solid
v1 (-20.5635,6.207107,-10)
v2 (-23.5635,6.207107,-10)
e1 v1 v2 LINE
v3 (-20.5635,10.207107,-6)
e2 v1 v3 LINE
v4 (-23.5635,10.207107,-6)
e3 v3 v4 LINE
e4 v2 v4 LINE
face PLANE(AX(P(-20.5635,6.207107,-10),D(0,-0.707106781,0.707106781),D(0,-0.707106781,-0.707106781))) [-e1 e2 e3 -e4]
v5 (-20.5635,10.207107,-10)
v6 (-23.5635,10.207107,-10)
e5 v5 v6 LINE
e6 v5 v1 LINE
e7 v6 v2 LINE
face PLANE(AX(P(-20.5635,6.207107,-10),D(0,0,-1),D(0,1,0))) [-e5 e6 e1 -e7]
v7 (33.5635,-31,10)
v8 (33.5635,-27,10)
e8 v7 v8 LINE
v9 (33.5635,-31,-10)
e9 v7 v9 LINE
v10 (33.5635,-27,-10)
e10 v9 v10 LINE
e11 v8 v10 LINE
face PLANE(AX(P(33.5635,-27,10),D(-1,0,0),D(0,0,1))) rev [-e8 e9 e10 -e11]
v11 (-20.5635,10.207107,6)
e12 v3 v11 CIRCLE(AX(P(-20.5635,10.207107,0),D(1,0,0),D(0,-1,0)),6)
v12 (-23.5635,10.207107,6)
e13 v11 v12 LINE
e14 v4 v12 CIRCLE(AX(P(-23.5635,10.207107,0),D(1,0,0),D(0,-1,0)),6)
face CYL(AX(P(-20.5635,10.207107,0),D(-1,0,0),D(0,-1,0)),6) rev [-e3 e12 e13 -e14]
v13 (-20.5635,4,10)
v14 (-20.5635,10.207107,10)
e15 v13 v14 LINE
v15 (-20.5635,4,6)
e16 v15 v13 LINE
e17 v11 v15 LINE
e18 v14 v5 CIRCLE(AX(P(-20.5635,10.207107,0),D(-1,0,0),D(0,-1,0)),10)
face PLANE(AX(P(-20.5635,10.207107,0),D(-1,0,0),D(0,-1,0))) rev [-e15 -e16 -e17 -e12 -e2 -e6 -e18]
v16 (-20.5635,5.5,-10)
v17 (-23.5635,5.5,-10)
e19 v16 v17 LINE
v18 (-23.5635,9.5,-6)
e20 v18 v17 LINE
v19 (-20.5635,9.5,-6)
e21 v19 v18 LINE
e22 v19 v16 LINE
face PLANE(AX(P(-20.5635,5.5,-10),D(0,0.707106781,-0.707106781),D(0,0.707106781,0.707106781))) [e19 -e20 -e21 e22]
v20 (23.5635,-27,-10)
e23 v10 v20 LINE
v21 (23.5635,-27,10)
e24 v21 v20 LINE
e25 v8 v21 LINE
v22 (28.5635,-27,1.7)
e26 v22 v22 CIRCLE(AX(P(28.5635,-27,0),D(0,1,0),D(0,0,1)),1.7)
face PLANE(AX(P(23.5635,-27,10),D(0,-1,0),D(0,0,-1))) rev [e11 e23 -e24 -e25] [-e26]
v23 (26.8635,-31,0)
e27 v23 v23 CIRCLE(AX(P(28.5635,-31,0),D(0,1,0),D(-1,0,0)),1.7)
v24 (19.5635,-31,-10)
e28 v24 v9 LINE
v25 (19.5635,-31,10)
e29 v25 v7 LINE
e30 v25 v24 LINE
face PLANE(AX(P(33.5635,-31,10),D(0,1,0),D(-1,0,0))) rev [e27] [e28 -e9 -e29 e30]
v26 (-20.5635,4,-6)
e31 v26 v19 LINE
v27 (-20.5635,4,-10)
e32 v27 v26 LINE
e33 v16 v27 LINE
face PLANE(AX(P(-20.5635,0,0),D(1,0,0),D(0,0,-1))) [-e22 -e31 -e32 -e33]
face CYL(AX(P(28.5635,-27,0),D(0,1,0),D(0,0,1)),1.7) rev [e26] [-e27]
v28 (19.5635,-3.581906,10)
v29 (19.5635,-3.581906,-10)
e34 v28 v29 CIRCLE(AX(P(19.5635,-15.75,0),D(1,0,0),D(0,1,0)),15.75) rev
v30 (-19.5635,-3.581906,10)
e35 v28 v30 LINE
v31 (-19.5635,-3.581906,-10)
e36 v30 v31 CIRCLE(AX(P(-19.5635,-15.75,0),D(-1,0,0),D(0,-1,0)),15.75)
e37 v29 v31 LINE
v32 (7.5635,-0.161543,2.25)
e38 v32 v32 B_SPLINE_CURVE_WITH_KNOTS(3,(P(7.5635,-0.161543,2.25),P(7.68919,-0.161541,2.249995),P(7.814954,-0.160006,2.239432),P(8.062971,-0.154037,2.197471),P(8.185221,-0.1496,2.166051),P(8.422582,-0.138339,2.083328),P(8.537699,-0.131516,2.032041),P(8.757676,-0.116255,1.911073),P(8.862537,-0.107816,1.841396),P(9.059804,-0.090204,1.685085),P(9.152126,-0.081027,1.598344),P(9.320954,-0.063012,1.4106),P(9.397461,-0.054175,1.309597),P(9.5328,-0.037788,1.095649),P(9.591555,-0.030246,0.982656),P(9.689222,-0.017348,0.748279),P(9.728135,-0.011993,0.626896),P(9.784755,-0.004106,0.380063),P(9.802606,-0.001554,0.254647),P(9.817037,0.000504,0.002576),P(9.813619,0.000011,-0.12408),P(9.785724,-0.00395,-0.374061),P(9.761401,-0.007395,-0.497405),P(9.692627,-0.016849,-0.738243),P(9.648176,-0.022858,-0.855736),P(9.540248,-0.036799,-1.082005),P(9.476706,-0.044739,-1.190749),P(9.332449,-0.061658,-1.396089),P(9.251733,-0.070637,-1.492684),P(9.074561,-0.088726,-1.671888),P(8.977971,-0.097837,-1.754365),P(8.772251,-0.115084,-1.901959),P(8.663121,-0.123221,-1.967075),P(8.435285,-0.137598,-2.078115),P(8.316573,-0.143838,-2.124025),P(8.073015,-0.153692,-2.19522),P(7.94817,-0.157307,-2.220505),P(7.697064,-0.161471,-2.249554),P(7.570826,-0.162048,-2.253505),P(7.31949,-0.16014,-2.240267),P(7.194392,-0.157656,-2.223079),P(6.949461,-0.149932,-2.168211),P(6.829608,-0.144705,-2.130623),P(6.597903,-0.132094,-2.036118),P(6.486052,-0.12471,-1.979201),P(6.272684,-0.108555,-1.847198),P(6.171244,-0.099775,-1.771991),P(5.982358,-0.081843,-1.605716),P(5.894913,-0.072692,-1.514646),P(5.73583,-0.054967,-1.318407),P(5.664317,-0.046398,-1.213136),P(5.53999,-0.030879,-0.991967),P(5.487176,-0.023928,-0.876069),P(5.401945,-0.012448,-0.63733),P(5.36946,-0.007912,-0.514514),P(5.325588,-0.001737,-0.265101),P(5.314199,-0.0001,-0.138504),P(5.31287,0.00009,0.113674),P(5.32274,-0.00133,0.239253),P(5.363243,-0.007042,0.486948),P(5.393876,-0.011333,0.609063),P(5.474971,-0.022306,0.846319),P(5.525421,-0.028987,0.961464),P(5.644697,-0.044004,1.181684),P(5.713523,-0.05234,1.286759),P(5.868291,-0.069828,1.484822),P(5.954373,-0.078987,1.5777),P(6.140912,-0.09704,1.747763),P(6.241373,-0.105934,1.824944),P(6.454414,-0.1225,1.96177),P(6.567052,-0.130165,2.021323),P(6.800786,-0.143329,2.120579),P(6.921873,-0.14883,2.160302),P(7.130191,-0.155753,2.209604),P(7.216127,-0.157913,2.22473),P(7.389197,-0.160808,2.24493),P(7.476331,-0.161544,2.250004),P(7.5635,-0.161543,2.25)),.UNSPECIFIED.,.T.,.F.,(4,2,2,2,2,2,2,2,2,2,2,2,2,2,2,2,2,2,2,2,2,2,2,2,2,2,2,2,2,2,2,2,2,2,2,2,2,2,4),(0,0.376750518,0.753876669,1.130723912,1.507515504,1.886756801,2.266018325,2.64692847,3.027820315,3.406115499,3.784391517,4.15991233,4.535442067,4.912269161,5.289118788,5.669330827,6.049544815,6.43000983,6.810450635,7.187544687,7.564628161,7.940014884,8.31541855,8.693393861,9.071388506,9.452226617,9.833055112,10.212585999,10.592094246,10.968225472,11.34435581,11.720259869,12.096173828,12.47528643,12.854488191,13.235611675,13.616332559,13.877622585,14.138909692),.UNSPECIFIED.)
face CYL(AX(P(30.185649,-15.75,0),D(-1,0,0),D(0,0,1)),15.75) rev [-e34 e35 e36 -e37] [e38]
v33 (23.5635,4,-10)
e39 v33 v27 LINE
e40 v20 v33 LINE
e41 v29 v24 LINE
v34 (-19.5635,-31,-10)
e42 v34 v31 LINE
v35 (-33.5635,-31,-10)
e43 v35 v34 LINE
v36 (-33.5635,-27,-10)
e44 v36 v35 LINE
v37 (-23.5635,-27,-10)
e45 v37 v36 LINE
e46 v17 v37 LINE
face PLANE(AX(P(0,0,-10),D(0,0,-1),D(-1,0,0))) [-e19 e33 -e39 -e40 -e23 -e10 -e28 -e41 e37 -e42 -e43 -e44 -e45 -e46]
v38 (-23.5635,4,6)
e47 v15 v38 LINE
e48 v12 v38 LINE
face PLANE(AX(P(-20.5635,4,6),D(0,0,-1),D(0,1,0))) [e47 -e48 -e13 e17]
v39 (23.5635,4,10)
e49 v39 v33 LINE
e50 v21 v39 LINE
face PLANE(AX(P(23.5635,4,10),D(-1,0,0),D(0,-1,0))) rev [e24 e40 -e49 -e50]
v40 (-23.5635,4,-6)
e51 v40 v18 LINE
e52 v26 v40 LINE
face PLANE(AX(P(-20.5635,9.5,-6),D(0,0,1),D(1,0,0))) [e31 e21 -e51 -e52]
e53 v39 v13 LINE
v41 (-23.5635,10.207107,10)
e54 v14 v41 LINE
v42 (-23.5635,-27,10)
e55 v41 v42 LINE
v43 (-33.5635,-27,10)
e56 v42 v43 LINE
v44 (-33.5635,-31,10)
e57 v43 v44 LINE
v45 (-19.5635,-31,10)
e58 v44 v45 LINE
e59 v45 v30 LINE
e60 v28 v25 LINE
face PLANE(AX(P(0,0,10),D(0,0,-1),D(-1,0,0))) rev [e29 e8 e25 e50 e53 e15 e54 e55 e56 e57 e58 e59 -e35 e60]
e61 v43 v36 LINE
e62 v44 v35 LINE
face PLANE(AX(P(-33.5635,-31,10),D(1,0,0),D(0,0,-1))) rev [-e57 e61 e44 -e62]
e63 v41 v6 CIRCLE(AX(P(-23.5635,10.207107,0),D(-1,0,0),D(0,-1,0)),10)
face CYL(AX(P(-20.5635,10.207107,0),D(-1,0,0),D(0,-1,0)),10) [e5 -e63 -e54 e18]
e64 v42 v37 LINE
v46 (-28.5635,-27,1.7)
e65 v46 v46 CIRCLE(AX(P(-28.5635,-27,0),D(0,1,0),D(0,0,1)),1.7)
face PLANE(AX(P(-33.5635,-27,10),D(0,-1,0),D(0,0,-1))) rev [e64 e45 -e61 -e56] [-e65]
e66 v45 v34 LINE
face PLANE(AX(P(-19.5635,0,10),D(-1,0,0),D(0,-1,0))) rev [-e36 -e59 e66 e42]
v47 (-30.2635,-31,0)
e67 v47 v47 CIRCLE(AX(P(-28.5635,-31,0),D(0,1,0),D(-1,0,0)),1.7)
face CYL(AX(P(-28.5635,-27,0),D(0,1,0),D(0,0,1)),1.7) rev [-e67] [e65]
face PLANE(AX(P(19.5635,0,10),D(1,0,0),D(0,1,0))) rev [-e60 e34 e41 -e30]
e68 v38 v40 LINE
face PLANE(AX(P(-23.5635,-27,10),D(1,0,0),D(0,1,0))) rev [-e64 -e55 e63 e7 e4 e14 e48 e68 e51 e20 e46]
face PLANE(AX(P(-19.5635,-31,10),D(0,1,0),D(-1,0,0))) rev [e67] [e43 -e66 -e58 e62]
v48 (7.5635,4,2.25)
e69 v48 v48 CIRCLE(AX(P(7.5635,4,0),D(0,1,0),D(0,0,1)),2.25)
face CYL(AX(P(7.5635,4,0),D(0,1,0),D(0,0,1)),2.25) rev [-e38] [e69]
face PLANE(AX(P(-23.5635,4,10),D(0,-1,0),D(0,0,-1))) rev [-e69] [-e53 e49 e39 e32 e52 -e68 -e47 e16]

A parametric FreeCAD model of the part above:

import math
import FreeCAD as App
import Part
import Sketcher

doc = App.newDocument("Part")
body = doc.addObject("PartDesign::Body", "Body")

# Sketch on XY plane
sketch1 = body.newObject("Sketcher::SketchObject", "Sketch")
sketch1.AttachmentSupport = (doc.getObject("XY_Plane"), [""])
sketch1.MapMode = "FlatFace"
sketch1.addGeometry([
    Part.LineSegment(App.Vector(-19.5635, 0, 0), App.Vector(19.5635, 0, 0)),  # 0
    Part.LineSegment(App.Vector(19.5635, 0, 0), App.Vector(19.5635, -31, 0)),  # 1
    Part.LineSegment(App.Vector(19.5635, -31, 0), App.Vector(33.5635, -31, 0)),  # 2
    Part.LineSegment(App.Vector(33.5635, -31, 0), App.Vector(33.5635, -27, 0)),  # 3
    Part.LineSegment(App.Vector(33.5635, -27, 0), App.Vector(23.5635, -27, 0)),  # 4
    Part.LineSegment(App.Vector(23.5635, -27, 0), App.Vector(23.5635, 4, 0)),  # 5
    Part.LineSegment(App.Vector(23.5635, 4, 0), App.Vector(-23.5635, 4, 0)),  # 6
    Part.LineSegment(App.Vector(-23.5635, 4, 0), App.Vector(-23.5635, -27, 0)),  # 7
    Part.LineSegment(App.Vector(-23.5635, -27, 0), App.Vector(-33.5635, -27, 0)),  # 8
    Part.LineSegment(App.Vector(-33.5635, -27, 0), App.Vector(-33.5635, -31, 0)),  # 9
    Part.LineSegment(App.Vector(-33.5635, -31, 0), App.Vector(-19.5635, -31, 0)),  # 10
    Part.LineSegment(App.Vector(-19.5635, -31, 0), App.Vector(-19.5635, 0, 0)),  # 11
], False)
sketch1.addConstraint([
    Sketcher.Constraint("Coincident", 0, 2, 1, 1),
    Sketcher.Constraint("Coincident", 1, 2, 2, 1),
    Sketcher.Constraint("Coincident", 2, 2, 3, 1),
    Sketcher.Constraint("Coincident", 3, 2, 4, 1),
    Sketcher.Constraint("Coincident", 4, 2, 5, 1),
    Sketcher.Constraint("Coincident", 5, 2, 6, 1),
    Sketcher.Constraint("Coincident", 6, 2, 7, 1),
    Sketcher.Constraint("Coincident", 7, 2, 8, 1),
    Sketcher.Constraint("Coincident", 8, 2, 9, 1),
    Sketcher.Constraint("Coincident", 9, 2, 10, 1),
    Sketcher.Constraint("Coincident", 10, 2, 11, 1),
    Sketcher.Constraint("Coincident", 11, 2, 0, 1),
    Sketcher.Constraint("Horizontal", 0),
    Sketcher.Constraint("Vertical", 1),
    Sketcher.Constraint("Horizontal", 2),
    Sketcher.Constraint("Vertical", 3),
    Sketcher.Constraint("Horizontal", 4),
    Sketcher.Constraint("Vertical", 5),
    Sketcher.Constraint("Horizontal", 6),
    Sketcher.Constraint("Vertical", 7),
    Sketcher.Constraint("Horizontal", 8),
    Sketcher.Constraint("Vertical", 9),
    Sketcher.Constraint("Horizontal", 10),
    Sketcher.Constraint("Vertical", 11),
    Sketcher.Constraint("Symmetric", 0, 2, 11, 2, -1, 1),
    Sketcher.Constraint("Symmetric", 4, 2, 7, 2, -2),
    Sketcher.Constraint("Symmetric", 2, 2, 9, 2, -2),
    Sketcher.Constraint("Equal", 1, 5),
    Sketcher.Constraint("DistanceX", 2, 1, 2, 2, 14.0),
    Sketcher.Constraint("DistanceX", 4, 2, 4, 1, 10.0),
    Sketcher.Constraint("DistanceY", 1, 2, 1, 1, 31.0),
    Sketcher.Constraint("DistanceY", 3, 1, 3, 2, 4.0),
    Sketcher.Constraint("DistanceX", 0, 1, 0, 2, 39.127),
])
pad1 = body.newObject("PartDesign::Pad", "Pad")
pad1.Profile = sketch1
pad1.Length = 20
pad1.Midplane = True

# Sketch on YZ plane
sketch2 = body.newObject("Sketcher::SketchObject", "Sketch001")
sketch2.AttachmentSupport = (doc.getObject("YZ_Plane"), [""])
sketch2.MapMode = "FlatFace"
sketch2.AttachmentOffset = App.Placement(App.Vector(0, 0, -19.5635), App.Rotation())
sketch2.addGeometry([
    Part.LineSegment(App.Vector(0, 0, 0), App.Vector(0, 10, 0)),  # 0
    Part.LineSegment(App.Vector(0, 10, 0), App.Vector(-3.581906, 10, 0)),  # 1
    Part.ArcOfCircle(Part.Circle(App.Vector(-15.75, 0, 0), App.Vector(0, 0, 1), 15.75), math.radians(0), math.radians(39.414098)),  # 2
    Part.LineSegment(App.Vector(0, -10, 0), App.Vector(0, 0, 0)),  # 3
    Part.ArcOfCircle(Part.Circle(App.Vector(-15.75, 0, 0), App.Vector(0, 0, 1), 15.75), math.radians(-39.414098), math.radians(0)),  # 4
    Part.LineSegment(App.Vector(-3.581906, -10, 0), App.Vector(0, -10, 0)),  # 5
], False)
sketch2.addConstraint([
    Sketcher.Constraint("Coincident", 0, 2, 1, 1),
    Sketcher.Constraint("Coincident", 1, 2, 2, 2),
    Sketcher.Constraint("Tangent", 2, 1, 0, 1),
    Sketcher.Constraint("Tangent", 3, 2, 4, 2),
    Sketcher.Constraint("Coincident", 4, 1, 5, 1),
    Sketcher.Constraint("Coincident", 5, 2, 3, 1),
    Sketcher.Constraint("Vertical", 0),
    Sketcher.Constraint("Horizontal", 1),
    Sketcher.Constraint("Vertical", 3),
    Sketcher.Constraint("Horizontal", 5),
    Sketcher.Constraint("Coincident", 2, 1, -1, 1),
    Sketcher.Constraint("Coincident", 3, 2, -1, 1),
    Sketcher.Constraint("Equal", 2, 4),
    Sketcher.Constraint("Vertical", 1, 2, 4, 1),
    Sketcher.Constraint("DistanceY", 0, 1, 0, 2, 10.0),
    Sketcher.Constraint("Radius", 2, 15.75),
])
pad2 = body.newObject("PartDesign::Pad", "Pad001")
pad2.Profile = sketch2
pad2.Length = 39.127

# Sketch on XZ plane
sketch3 = body.newObject("Sketcher::SketchObject", "Sketch002")
sketch3.AttachmentSupport = (doc.getObject("XZ_Plane"), [""])
sketch3.MapMode = "FlatFace"
sketch3.AttachmentOffset = App.Placement(App.Vector(0, 0, 27), App.Rotation())
sketch3.addGeometry([
    Part.Circle(App.Vector(28.5635, 0, 0), App.Vector(0, 0, 1), 1.7),
    Part.Circle(App.Vector(-28.5635, 0, 0), App.Vector(0, 0, 1), 1.7),
], False)
sketch3.addConstraint([
    Sketcher.Constraint("Equal", 0, 1),
    Sketcher.Constraint("Symmetric", 0, 3, 1, 3, -1, 1),
    Sketcher.Constraint("PointOnObject", 0, 3, -1),
    Sketcher.Constraint("Diameter", 0, 3.4),
    Sketcher.Constraint("DistanceX", 1, 3, 0, 3, 57.127),
])
doc.recompute()
hole = body.newObject("PartDesign::Hole", "Hole")
hole.Profile = sketch3
hole.ThreadType = "None"
hole.Diameter = 3.4
hole.DepthType = "Dimension"
hole.Depth = 7.5
hole.DrillPoint = "Angled"
hole.DrillPointAngle = 118
hole.Reversed = True

# Sketch on XZ plane
sketch4 = body.newObject("Sketcher::SketchObject", "Sketch003")
sketch4.AttachmentSupport = (doc.getObject("XZ_Plane"), [""])
sketch4.MapMode = "FlatFace"
sketch4.AttachmentOffset = App.Placement(App.Vector(0, 0, -4), App.Rotation())
sketch4.addGeometry(Part.Circle(App.Vector(7.5635, 0, 0), App.Vector(0, 0, 1), 2.25), False)
sketch4.addConstraint([
    Sketcher.Constraint("PointOnObject", 0, 3, -1),
    Sketcher.Constraint("Diameter", 0, 4.5),
    Sketcher.Constraint("DistanceX", -1, 1, 0, 3, 7.5635),
])
doc.recompute()
hole2 = body.newObject("PartDesign::Hole", "Hole001")
hole2.Profile = sketch4
hole2.ThreadType = "None"
hole2.Diameter = 4.5
hole2.DepthType = "ThroughAll"
hole2.Reversed = True

# Sketch on YZ plane
sketch5 = body.newObject("Sketcher::SketchObject", "Sketch004")
sketch5.AttachmentSupport = (doc.getObject("YZ_Plane"), [""])
sketch5.MapMode = "FlatFace"
sketch5.AttachmentOffset = App.Placement(App.Vector(0, 0, -23.5635), App.Rotation())
sketch5.addGeometry([
    Part.LineSegment(App.Vector(5.5, -10, 0), App.Vector(4, -10, 0)),  # 0
    Part.LineSegment(App.Vector(4, -10, 0), App.Vector(4, -6, 0)),  # 1
    Part.LineSegment(App.Vector(4, -6, 0), App.Vector(9.5, -6, 0)),  # 2
    Part.LineSegment(App.Vector(9.5, -6, 0), App.Vector(5.5, -10, 0)),  # 3
    Part.LineSegment(App.Vector(6.207107, -10, 0), App.Vector(10.207107, -6, 0)),  # 4
    Part.ArcOfCircle(Part.Circle(App.Vector(10.207107, 0, 0), App.Vector(0, 0, 1), 6), math.radians(-90), math.radians(90)),  # 5
    Part.LineSegment(App.Vector(10.207107, 6, 0), App.Vector(4, 6, 0)),  # 6
    Part.LineSegment(App.Vector(4, 6, 0), App.Vector(4, 10, 0)),  # 7
    Part.LineSegment(App.Vector(4, 10, 0), App.Vector(10.207107, 10, 0)),  # 8
    Part.ArcOfCircle(Part.Circle(App.Vector(10.207107, 0, 0), App.Vector(0, 0, 1), 10), math.radians(-90), math.radians(90)),  # 9
    Part.LineSegment(App.Vector(10.207107, -10, 0), App.Vector(6.207107, -10, 0)),  # 10
], False)
sketch5.addConstraint([
    Sketcher.Constraint("Coincident", 0, 2, 1, 1),
    Sketcher.Constraint("Coincident", 1, 2, 2, 1),
    Sketcher.Constraint("Coincident", 2, 2, 3, 1),
    Sketcher.Constraint("Coincident", 3, 2, 0, 1),
    Sketcher.Constraint("Coincident", 4, 2, 5, 1),
    Sketcher.Constraint("Tangent", 5, 2, 6, 1),
    Sketcher.Constraint("Coincident", 6, 2, 7, 1),
    Sketcher.Constraint("Coincident", 7, 2, 8, 1),
    Sketcher.Constraint("Tangent", 8, 2, 9, 2),
    Sketcher.Constraint("Tangent", 9, 1, 10, 1),
    Sketcher.Constraint("Coincident", 10, 2, 4, 1),
    Sketcher.Constraint("Horizontal", 0),
    Sketcher.Constraint("Vertical", 1),
    Sketcher.Constraint("Horizontal", 2),
    Sketcher.Constraint("Horizontal", 6),
    Sketcher.Constraint("Vertical", 7),
    Sketcher.Constraint("Horizontal", 8),
    Sketcher.Constraint("Horizontal", 10),
    Sketcher.Constraint("Coincident", 9, 3, 5, 3),
    Sketcher.Constraint("Symmetric", 4, 2, 5, 2, -1),
    Sketcher.Constraint("Symmetric", 1, 2, 6, 2, -1),
    Sketcher.Constraint("Parallel", 3, 4),
    Sketcher.Constraint("Horizontal", 3, 2, 9, 1),
    Sketcher.Constraint("Equal", 10, 1),
    Sketcher.Constraint("Radius", 5, 6.0),
    Sketcher.Constraint("Radius", 9, 10.0),
    Sketcher.Constraint("DistanceX", 0, 2, 0, 1, 1.5),
    Sketcher.Constraint("DistanceX", -1, 1, 0, 2, 4.0),
    Sketcher.Constraint("DistanceX", 6, 2, 6, 1, 6.207107),
])
pad3 = body.newObject("PartDesign::Pad", "Pad002")
pad3.Profile = sketch5
pad3.Length = 3

doc.recompute()
